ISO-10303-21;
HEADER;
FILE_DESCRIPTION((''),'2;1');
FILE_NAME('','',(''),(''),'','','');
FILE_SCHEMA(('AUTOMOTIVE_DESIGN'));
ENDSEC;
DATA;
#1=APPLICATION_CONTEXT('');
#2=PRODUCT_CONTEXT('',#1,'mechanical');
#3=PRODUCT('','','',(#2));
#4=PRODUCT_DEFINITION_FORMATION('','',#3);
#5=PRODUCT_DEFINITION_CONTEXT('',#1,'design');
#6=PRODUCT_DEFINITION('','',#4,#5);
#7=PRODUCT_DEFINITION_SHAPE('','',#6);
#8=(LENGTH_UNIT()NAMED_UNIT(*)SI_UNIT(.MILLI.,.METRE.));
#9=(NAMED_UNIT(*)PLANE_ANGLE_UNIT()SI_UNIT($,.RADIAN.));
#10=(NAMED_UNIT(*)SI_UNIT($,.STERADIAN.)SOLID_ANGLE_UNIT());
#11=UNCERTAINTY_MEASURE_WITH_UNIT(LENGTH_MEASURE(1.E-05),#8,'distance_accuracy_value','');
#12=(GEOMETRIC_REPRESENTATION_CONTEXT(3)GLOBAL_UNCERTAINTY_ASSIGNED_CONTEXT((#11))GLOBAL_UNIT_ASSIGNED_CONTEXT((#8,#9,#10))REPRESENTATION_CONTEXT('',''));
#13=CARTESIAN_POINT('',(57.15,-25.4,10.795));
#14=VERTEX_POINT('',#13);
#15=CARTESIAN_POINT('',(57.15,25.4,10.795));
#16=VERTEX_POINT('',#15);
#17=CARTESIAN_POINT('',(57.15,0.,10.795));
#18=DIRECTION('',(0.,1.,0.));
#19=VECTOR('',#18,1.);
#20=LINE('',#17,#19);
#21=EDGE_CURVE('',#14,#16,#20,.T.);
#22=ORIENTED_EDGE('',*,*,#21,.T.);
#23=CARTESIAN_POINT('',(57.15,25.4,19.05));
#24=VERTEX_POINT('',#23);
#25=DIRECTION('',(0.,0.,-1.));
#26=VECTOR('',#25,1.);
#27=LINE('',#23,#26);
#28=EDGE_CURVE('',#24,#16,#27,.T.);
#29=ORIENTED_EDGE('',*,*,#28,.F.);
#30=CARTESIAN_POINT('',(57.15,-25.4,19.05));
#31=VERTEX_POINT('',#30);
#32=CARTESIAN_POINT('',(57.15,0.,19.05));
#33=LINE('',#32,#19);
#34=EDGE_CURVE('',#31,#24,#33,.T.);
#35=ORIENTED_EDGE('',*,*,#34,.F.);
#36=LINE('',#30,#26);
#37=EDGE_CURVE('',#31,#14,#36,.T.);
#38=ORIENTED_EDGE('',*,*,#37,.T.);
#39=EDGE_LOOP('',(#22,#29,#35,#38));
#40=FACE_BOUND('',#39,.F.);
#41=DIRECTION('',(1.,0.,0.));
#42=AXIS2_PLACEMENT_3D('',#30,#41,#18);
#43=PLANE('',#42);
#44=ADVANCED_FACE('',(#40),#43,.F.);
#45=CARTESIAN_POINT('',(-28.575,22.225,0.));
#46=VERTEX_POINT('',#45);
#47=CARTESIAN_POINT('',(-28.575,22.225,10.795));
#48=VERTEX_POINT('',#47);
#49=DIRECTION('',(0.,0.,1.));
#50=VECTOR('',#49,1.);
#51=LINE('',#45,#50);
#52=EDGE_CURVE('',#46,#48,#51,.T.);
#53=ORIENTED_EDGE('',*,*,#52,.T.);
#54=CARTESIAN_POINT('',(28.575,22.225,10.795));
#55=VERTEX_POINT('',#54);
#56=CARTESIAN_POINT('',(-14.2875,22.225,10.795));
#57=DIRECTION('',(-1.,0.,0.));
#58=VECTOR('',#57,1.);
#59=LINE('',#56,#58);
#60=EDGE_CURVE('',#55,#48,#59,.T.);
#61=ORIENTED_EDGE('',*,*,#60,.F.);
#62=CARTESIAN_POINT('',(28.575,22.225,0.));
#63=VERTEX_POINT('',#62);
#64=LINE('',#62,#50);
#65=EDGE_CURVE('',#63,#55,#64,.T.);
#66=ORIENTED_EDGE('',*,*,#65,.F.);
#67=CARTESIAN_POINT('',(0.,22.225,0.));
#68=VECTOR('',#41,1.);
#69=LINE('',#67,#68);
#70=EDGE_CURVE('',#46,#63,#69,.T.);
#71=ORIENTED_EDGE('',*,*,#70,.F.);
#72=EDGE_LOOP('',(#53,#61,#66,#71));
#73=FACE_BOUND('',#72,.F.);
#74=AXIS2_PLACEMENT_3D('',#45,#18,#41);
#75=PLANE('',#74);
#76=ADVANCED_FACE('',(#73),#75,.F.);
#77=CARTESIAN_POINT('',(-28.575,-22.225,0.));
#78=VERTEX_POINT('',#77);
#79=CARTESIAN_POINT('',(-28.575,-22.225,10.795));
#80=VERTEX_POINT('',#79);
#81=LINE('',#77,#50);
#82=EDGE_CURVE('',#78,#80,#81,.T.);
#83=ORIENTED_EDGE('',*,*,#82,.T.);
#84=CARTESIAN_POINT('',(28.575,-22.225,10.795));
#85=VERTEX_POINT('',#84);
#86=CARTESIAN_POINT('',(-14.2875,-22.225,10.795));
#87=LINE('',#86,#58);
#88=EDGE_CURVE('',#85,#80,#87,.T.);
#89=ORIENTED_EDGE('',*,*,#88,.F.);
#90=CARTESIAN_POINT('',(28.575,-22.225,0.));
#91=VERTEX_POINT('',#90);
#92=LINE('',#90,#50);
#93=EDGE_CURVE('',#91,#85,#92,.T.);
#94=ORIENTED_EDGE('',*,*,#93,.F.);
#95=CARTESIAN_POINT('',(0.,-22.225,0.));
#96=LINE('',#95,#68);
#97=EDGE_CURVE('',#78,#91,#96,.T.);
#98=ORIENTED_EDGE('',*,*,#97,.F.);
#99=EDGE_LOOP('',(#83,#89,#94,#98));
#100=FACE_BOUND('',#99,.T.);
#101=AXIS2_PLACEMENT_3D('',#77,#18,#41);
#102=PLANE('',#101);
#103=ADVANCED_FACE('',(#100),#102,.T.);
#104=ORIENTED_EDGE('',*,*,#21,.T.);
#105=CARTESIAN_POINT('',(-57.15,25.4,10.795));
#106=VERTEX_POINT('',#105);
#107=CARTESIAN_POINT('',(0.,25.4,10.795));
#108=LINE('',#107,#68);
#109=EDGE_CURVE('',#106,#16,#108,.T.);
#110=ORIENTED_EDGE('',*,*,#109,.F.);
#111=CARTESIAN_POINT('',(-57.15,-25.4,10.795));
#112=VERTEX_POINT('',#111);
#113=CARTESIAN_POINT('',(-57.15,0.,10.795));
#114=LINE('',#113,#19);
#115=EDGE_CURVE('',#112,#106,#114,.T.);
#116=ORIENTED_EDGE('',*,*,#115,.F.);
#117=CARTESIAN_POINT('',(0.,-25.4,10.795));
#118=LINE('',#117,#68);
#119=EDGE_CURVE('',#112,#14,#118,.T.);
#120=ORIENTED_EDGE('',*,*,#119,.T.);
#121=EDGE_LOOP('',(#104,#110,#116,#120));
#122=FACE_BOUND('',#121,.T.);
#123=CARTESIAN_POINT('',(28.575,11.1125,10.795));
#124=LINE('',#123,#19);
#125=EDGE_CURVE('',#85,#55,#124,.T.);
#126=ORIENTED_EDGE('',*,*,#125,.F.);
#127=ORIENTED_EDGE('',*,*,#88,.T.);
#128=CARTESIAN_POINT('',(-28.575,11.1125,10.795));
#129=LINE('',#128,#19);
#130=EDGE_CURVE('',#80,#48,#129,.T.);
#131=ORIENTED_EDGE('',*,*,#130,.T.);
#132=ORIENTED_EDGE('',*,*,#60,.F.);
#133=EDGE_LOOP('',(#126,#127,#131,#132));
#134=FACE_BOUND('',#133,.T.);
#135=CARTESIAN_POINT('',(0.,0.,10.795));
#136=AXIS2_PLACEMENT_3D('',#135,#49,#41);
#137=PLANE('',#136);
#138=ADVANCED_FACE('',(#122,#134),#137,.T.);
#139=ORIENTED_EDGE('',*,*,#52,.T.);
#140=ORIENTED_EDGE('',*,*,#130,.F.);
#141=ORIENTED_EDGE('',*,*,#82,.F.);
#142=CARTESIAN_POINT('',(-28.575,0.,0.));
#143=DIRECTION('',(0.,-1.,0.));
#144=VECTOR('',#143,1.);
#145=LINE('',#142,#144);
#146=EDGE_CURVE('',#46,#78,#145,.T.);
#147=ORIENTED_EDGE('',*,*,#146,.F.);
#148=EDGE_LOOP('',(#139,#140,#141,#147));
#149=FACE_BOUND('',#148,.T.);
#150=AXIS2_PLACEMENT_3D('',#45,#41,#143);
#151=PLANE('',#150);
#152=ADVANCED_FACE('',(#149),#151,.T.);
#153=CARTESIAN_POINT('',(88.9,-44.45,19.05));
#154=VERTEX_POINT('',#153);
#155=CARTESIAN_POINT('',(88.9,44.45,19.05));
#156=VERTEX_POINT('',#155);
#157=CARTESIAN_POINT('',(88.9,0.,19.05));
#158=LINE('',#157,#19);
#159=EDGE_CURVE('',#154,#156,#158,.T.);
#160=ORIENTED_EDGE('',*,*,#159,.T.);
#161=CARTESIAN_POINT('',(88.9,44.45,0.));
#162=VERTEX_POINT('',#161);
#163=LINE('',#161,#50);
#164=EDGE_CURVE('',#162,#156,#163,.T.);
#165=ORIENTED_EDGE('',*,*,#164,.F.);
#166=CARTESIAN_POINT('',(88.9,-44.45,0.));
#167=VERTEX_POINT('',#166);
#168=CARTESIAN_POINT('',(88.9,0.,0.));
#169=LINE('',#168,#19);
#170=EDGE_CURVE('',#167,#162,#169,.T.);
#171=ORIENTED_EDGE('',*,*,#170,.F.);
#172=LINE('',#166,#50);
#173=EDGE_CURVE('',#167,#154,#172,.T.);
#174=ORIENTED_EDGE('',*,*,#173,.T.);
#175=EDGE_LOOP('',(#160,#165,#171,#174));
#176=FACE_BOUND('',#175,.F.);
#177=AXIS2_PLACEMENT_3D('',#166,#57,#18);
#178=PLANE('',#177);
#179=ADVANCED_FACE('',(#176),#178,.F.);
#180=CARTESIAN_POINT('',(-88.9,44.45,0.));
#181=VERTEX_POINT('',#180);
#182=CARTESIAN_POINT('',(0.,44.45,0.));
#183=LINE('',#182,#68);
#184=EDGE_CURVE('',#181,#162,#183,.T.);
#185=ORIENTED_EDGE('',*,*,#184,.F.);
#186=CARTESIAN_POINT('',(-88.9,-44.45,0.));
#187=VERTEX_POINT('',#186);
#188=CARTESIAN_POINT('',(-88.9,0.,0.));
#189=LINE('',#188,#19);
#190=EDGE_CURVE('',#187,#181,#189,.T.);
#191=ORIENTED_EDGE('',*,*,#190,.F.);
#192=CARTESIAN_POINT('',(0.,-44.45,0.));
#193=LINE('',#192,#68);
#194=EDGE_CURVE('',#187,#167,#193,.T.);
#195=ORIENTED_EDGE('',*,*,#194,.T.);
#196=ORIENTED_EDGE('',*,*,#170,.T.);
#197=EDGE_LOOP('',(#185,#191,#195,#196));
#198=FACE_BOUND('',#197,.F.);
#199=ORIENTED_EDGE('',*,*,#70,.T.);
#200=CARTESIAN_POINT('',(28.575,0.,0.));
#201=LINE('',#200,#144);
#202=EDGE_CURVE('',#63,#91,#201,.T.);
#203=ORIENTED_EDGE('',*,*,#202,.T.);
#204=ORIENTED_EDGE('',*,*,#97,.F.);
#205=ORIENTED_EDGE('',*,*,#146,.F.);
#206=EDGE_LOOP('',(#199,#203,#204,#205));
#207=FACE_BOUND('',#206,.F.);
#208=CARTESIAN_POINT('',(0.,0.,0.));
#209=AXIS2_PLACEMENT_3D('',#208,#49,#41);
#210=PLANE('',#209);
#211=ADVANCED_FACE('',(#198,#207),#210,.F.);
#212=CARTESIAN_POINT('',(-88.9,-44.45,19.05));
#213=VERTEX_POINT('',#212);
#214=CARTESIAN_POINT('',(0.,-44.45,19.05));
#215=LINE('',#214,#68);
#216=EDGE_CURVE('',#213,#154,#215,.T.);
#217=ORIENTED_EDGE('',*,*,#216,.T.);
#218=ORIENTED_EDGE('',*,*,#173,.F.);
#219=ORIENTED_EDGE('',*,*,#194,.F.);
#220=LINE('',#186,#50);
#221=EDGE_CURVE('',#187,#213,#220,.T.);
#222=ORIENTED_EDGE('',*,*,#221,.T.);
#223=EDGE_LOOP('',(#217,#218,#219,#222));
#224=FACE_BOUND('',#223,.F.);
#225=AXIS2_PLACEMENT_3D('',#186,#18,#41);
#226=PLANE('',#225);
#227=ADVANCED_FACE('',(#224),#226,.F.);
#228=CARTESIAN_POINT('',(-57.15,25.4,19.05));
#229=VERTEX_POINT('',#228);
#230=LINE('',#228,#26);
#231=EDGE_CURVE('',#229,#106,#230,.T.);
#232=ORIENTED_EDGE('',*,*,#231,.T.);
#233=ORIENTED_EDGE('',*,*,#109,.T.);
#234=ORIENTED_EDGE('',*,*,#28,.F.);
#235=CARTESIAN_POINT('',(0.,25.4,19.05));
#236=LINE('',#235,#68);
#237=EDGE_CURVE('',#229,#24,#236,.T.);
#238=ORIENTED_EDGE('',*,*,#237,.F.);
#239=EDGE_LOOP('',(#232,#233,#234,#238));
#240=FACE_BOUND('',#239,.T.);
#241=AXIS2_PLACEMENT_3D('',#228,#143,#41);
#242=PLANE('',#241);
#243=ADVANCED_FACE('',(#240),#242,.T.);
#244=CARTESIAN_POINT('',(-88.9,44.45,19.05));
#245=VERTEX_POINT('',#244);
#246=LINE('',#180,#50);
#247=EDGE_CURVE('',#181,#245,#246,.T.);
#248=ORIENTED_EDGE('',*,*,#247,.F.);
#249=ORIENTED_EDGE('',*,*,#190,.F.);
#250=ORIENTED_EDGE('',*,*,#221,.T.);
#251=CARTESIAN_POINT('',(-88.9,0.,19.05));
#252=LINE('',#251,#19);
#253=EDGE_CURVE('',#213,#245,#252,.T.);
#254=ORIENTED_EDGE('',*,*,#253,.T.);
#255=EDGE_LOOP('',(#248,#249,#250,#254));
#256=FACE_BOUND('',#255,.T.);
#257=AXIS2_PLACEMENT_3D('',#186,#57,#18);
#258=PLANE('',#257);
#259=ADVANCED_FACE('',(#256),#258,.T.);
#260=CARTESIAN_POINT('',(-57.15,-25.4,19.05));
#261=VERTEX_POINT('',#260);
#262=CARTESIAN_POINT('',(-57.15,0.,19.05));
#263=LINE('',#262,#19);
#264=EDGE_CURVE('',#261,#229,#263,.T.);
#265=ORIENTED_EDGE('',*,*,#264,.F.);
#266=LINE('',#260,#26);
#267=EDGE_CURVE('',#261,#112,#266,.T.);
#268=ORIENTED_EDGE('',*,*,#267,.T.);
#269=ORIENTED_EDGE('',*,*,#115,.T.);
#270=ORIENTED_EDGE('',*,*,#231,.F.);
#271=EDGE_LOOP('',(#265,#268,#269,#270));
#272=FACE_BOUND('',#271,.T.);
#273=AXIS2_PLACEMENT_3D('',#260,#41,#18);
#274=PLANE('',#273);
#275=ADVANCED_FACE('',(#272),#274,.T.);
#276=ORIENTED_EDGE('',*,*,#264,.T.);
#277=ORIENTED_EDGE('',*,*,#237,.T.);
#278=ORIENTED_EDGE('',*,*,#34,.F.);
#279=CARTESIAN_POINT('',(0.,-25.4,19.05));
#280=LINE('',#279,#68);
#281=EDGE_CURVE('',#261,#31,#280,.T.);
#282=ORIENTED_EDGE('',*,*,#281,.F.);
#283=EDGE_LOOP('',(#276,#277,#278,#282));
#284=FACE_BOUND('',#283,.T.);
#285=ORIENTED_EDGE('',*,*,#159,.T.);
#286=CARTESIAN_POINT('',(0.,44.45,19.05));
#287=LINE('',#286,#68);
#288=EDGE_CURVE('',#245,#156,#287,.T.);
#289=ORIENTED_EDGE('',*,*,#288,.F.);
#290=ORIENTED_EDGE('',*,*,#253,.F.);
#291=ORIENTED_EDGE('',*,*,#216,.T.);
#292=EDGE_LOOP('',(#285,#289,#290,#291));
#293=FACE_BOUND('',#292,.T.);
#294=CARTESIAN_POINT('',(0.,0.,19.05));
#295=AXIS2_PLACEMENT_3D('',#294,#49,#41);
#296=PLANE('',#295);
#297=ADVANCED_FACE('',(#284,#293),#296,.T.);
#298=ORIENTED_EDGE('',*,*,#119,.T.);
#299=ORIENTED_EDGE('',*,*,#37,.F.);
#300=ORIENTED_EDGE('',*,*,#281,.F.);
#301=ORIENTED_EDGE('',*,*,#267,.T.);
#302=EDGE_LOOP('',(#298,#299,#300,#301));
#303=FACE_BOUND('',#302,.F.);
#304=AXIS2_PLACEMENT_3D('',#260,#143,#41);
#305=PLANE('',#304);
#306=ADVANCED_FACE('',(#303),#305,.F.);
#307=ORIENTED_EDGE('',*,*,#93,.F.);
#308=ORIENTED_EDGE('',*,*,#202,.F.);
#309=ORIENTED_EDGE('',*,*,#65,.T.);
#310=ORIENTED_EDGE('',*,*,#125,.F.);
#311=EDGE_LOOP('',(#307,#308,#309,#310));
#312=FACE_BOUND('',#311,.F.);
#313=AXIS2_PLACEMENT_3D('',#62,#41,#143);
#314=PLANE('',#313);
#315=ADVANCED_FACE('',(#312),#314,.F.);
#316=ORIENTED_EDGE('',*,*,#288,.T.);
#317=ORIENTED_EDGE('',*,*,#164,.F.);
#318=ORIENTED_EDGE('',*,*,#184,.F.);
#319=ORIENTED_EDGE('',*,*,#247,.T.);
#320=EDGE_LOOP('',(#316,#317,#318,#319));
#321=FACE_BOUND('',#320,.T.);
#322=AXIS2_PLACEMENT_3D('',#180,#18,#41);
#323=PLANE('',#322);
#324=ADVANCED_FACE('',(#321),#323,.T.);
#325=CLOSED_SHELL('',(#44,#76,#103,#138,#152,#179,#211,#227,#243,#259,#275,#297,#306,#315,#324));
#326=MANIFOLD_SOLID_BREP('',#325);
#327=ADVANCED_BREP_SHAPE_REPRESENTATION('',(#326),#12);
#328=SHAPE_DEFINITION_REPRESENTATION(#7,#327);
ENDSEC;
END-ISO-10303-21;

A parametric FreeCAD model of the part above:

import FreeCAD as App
import Part
import Sketcher
from FreeCAD import Vector
Q = App.Units.Quantity


def add_polygon(sketch, points):
    """Adds a closed chain of lines whose ends are joined by coincident constraints."""
    first, n = sketch.GeometryCount, len(points)
    for a, b in zip(points, points[1:] + points[:1]):
        sketch.addGeometry(Part.LineSegment(App.Vector(*a, 0), App.Vector(*b, 0)), False)
    for i in range(n):
        sketch.addConstraint(Sketcher.Constraint("Coincident", first + i, 2, first + (i + 1) % n, 1))

doc = App.newDocument("Part")
body = doc.addObject("PartDesign::Body", "Body")

# Sketch on XY plane
sketch1 = doc.addObject("Sketcher::SketchObject", "Sketch")
body.addObject(sketch1)
sketch1.AttachmentSupport = (doc.XY_Plane, [""])
sketch1.MapMode = "FlatFace"
add_polygon(sketch1, [(-88.9, 44.45), (-88.9, -44.45), (88.9, -44.45), (88.9, 44.45)])  # lines 0-3
sketch1.addConstraint(Sketcher.Constraint("Vertical", 0))
sketch1.addConstraint(Sketcher.Constraint("Horizontal", 1))
sketch1.addConstraint(Sketcher.Constraint("Vertical", 2))
sketch1.addConstraint(Sketcher.Constraint("Horizontal", 3))
sketch1.addConstraint(Sketcher.Constraint("Symmetric", 0, 2, 2, 2, -1, 1))
sketch1.addConstraint(Sketcher.Constraint("DistanceX", 1, 1, 1, 2, Q("7 in")))
sketch1.addConstraint(Sketcher.Constraint("DistanceY", 0, 2, 0, 1, Q("3.5 in")))
pad1 = doc.addObject("PartDesign::Pad", "Pad")
body.addObject(pad1)
pad1.Profile = sketch1
pad1.Length = Q("0.75 in")

# Sketch on XY plane
sketch2 = doc.addObject("Sketcher::SketchObject", "Sketch001")
body.addObject(sketch2)
sketch2.AttachmentSupport = (doc.XY_Plane, [""])
sketch2.MapMode = "FlatFace"
sketch2.AttachmentOffset = App.Placement(Vector(0, 0, 0.75 * 25.4), App.Rotation())
add_polygon(sketch2, [(-57.15, 25.4), (-57.15, -25.4), (57.15, -25.4), (57.15, 25.4)])  # lines 0-3
sketch2.addConstraint(Sketcher.Constraint("Vertical", 0))
sketch2.addConstraint(Sketcher.Constraint("Horizontal", 1))
sketch2.addConstraint(Sketcher.Constraint("Vertical", 2))
sketch2.addConstraint(Sketcher.Constraint("Horizontal", 3))
sketch2.addConstraint(Sketcher.Constraint("Symmetric", 0, 2, 2, 2, -1, 1))
sketch2.addConstraint(Sketcher.Constraint("DistanceY", 0, 2, 0, 1, Q("2 in")))
sketch2.addConstraint(Sketcher.Constraint("DistanceX", 1, 1, 1, 2, Q("4.5 in")))
pocket1 = doc.addObject("PartDesign::Pocket", "Pocket")
body.addObject(pocket1)
pocket1.Profile = sketch2
pocket1.Length = Q("0.325 in")

# Sketch on XY plane
sketch3 = doc.addObject("Sketcher::SketchObject", "Sketch002")
body.addObject(sketch3)
sketch3.AttachmentSupport = (doc.XY_Plane, [""])
sketch3.MapMode = "FlatFace"
add_polygon(sketch3, [(-28.575, -22.225), (-28.575, 22.225), (28.575, 22.225), (28.575, -22.225)])  # lines 0-3
sketch3.addConstraint(Sketcher.Constraint("Vertical", 0))
sketch3.addConstraint(Sketcher.Constraint("Horizontal", 1))
sketch3.addConstraint(Sketcher.Constraint("Vertical", 2))
sketch3.addConstraint(Sketcher.Constraint("Horizontal", 3))
sketch3.addConstraint(Sketcher.Constraint("Symmetric", 0, 2, 2, 2, -1, 1))
sketch3.addConstraint(Sketcher.Constraint("DistanceX", 1, 1, 1, 2, Q("2.25 in")))
sketch3.addConstraint(Sketcher.Constraint("DistanceY", 0, 1, 0, 2, Q("1.75 in")))
pocket2 = doc.addObject("PartDesign::Pocket", "Pocket001")
body.addObject(pocket2)
pocket2.Profile = sketch3
pocket2.Type = "ThroughAll"
pocket2.Reversed = True

doc.recompute()
